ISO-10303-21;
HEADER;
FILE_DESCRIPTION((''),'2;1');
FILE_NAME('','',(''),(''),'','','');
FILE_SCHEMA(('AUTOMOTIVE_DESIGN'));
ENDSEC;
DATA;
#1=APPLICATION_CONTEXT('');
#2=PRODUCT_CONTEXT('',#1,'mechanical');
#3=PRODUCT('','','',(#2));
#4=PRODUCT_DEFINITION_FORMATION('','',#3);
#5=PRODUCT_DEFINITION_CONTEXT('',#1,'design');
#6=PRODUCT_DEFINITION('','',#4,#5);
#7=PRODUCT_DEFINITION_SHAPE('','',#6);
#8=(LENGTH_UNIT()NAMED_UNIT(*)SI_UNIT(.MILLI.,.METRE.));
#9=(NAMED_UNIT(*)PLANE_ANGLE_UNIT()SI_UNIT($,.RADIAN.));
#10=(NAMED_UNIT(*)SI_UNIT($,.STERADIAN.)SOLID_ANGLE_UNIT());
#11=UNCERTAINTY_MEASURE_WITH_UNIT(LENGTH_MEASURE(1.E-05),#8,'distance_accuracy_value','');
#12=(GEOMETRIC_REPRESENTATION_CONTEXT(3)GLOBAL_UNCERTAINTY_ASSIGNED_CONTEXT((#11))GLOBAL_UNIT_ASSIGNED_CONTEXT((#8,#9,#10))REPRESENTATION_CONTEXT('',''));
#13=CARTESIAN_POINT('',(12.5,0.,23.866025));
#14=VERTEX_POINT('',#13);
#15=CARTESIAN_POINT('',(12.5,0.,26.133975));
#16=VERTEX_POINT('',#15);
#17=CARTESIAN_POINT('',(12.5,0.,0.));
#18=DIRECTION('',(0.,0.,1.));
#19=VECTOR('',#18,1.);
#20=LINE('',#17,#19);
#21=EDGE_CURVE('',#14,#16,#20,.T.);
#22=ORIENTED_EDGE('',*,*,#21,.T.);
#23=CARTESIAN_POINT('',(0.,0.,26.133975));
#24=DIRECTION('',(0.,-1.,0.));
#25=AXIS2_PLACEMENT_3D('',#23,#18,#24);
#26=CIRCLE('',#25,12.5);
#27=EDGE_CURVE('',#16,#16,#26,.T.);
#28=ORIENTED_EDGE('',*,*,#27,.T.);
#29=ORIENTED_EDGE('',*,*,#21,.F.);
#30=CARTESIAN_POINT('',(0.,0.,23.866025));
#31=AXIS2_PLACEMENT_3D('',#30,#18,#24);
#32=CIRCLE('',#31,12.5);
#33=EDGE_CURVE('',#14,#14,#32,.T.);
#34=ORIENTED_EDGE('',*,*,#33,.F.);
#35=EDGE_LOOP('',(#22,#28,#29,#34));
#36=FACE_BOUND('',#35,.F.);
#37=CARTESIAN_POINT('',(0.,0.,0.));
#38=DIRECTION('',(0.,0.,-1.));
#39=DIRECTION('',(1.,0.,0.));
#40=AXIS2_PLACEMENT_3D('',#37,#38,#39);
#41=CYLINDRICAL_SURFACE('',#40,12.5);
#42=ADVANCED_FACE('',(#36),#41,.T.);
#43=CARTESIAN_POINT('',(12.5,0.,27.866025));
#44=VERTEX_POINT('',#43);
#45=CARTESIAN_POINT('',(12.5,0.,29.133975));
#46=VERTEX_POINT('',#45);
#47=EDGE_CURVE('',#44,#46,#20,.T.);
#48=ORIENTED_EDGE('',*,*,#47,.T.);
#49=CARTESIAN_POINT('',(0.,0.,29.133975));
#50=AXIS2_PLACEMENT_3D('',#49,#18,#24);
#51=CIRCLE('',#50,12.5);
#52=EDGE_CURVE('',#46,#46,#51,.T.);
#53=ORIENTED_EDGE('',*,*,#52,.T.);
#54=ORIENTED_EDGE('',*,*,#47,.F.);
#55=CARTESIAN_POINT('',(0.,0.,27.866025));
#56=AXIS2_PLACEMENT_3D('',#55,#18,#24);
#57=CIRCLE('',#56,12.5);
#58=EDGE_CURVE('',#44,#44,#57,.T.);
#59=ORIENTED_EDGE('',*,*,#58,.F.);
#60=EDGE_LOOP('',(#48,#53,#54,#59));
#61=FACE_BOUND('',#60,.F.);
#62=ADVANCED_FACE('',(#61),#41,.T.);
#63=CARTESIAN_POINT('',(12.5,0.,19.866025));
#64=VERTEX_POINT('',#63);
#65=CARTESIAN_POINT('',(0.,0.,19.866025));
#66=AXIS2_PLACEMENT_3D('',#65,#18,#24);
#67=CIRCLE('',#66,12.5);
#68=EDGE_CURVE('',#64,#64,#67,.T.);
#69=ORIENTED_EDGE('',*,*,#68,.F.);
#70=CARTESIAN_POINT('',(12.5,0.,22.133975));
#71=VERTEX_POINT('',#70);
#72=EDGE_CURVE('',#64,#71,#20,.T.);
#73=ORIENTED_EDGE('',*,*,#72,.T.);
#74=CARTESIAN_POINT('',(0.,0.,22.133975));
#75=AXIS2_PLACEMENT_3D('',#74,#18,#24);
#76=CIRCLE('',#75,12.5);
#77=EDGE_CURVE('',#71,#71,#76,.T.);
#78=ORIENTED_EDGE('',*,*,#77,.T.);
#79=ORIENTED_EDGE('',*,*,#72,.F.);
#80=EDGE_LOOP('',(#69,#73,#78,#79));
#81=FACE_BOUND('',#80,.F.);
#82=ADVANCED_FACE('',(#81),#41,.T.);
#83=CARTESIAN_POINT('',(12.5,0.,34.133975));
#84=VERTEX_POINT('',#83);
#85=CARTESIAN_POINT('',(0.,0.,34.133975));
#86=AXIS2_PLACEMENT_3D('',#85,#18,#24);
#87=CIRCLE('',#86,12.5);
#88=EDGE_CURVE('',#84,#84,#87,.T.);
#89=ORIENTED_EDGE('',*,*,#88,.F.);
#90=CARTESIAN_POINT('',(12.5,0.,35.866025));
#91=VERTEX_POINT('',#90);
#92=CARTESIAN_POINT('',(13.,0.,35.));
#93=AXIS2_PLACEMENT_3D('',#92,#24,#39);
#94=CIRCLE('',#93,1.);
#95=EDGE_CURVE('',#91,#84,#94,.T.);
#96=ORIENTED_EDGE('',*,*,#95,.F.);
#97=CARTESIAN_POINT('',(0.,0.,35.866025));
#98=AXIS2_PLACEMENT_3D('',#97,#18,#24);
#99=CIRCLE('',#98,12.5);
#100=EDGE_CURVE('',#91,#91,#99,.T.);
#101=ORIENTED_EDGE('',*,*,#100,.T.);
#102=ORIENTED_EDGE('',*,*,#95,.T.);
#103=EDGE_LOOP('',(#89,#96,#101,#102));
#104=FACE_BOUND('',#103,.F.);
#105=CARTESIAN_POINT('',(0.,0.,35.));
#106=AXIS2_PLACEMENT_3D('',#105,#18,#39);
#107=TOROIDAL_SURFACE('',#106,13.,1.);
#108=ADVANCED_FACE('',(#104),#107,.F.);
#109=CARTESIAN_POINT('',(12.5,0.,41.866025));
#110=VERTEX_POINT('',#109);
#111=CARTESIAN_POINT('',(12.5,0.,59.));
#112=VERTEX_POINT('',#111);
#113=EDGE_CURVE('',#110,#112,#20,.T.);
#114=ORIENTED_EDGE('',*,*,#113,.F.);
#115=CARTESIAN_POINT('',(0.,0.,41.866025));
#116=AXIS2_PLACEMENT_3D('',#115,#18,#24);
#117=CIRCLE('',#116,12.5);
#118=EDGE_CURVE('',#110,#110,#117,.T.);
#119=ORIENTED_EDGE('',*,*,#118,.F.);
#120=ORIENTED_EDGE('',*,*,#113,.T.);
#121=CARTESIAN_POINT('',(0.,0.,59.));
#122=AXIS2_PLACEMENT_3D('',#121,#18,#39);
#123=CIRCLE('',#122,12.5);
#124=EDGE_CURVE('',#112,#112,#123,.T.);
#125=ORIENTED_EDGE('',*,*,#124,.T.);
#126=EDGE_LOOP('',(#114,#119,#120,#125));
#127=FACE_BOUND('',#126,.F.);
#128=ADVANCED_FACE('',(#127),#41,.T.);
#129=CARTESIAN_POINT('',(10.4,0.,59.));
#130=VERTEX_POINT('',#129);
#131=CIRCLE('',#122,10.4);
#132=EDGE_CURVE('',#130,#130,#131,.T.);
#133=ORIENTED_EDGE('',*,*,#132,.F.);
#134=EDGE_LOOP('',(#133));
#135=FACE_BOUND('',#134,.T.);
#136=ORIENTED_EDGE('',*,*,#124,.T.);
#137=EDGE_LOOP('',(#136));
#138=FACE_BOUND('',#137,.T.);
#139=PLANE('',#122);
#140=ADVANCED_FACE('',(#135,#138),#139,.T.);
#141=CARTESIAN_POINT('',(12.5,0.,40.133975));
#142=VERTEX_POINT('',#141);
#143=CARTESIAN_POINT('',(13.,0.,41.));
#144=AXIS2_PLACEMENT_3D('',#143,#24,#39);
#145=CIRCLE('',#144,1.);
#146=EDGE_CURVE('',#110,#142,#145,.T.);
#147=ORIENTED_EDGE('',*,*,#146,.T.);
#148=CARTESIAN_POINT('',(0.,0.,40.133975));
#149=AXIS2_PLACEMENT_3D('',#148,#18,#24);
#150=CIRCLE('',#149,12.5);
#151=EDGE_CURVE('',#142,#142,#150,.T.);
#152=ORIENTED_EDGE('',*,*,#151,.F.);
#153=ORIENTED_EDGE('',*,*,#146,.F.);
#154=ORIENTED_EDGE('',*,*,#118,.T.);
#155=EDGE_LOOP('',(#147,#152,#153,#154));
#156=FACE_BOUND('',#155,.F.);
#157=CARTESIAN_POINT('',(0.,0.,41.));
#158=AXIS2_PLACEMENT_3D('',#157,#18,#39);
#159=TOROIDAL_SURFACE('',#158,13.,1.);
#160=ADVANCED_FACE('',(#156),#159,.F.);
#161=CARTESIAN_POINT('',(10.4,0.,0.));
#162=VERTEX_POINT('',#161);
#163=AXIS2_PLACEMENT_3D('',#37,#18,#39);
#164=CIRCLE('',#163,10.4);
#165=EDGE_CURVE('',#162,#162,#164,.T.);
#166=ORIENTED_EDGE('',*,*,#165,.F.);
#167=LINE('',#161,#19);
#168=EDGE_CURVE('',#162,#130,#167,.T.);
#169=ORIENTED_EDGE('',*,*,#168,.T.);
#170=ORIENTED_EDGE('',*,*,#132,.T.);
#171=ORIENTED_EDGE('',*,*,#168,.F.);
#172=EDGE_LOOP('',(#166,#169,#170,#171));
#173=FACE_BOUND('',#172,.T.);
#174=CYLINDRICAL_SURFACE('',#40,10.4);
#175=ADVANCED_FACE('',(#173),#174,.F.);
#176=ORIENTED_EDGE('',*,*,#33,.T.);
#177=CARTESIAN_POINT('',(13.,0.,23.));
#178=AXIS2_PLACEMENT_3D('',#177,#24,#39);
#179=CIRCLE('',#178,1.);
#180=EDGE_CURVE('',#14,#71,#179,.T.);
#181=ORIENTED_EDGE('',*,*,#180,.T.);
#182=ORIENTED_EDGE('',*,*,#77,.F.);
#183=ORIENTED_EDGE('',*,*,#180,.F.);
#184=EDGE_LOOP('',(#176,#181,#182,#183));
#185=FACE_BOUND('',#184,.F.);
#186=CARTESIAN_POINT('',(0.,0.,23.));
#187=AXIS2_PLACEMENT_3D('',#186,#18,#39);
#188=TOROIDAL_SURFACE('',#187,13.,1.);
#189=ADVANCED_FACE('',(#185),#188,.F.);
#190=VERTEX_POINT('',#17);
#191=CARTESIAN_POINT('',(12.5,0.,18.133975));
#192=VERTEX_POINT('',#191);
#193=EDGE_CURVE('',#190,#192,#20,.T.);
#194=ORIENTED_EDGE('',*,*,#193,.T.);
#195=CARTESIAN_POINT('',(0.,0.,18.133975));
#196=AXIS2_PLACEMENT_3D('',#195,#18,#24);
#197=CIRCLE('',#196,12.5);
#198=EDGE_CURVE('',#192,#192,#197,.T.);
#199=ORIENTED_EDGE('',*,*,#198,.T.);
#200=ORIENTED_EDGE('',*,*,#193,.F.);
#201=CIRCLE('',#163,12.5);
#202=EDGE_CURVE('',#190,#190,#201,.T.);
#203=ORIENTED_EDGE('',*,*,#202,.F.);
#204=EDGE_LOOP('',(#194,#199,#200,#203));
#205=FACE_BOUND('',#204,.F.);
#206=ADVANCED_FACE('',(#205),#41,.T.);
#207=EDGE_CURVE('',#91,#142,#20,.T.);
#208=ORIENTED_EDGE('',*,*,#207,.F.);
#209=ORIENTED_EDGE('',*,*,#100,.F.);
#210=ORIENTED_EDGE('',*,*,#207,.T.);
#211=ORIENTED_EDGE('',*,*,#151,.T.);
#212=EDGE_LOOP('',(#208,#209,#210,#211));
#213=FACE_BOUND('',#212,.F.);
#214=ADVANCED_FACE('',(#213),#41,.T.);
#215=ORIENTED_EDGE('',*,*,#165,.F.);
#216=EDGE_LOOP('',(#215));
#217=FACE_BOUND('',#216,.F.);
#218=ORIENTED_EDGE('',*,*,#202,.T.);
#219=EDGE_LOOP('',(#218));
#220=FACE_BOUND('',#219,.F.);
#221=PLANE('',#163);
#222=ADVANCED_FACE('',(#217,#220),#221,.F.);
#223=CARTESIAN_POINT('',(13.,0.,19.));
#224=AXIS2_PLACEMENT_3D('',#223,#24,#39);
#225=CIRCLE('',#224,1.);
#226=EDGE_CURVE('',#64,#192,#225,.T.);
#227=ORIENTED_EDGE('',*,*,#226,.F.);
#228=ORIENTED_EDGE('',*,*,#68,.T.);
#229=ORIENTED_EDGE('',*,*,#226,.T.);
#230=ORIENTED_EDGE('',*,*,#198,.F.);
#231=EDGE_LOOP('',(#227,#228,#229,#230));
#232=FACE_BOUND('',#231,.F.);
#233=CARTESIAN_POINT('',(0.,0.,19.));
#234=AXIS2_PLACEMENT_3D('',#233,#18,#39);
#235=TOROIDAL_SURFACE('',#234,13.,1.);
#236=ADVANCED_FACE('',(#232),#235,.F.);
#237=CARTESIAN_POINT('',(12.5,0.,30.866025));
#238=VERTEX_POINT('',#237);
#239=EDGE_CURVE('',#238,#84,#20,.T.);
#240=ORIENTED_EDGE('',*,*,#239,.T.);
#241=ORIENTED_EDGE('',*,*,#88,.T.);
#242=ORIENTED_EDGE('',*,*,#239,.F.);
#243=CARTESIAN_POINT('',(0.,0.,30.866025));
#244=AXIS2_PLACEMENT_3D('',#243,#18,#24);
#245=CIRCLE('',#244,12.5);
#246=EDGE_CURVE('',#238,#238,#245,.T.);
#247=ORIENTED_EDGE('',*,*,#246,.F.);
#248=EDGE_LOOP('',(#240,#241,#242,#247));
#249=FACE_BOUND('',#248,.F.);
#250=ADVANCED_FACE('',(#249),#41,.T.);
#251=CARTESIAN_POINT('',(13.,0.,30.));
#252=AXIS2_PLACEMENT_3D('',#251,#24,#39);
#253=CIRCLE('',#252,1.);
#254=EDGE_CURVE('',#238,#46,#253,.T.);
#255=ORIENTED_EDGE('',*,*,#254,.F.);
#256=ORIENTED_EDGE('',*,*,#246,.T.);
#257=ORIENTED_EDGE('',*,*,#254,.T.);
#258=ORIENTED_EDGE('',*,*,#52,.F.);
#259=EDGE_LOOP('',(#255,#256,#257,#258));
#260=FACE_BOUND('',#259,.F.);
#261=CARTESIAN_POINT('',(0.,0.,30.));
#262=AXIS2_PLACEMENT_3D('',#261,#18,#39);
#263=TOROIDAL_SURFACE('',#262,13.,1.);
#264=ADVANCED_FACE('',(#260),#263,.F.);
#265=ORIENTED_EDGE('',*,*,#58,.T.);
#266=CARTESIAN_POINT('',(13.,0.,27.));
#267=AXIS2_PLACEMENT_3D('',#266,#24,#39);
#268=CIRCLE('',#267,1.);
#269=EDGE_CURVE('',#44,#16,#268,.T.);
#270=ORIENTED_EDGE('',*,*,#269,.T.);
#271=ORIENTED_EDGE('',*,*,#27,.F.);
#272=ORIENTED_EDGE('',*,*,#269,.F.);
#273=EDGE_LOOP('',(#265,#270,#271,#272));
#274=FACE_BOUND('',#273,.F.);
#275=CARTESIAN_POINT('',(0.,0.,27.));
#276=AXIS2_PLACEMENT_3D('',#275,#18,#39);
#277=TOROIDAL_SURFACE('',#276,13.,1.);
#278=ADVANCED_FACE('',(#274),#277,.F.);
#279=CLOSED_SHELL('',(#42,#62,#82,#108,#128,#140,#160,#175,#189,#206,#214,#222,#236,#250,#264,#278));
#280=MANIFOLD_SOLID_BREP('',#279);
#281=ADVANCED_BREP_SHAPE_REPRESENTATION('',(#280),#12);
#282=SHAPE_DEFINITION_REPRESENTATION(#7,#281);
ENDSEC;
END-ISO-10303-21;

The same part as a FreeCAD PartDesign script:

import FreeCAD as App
import Part
import Sketcher
from FreeCAD import Vector

doc = App.newDocument("Part")
body = doc.addObject("PartDesign::Body", "Body")

sketch1 = body.newObject("Sketcher::SketchObject", "Sketch")
sketch1.AttachmentSupport = (doc.getObject("XZ_Plane"), [""])
sketch1.MapMode = "FlatFace"
sketch1.addGeometry(Part.Circle(Vector(13, 19, 0), Vector(0, 0, 1), 1), False)
sketch1.addConstraint([
    Sketcher.Constraint("Diameter", 0, 2.0),
    Sketcher.Constraint("DistanceX", -1, 1, 0, 3, 13.0),
    Sketcher.Constraint("DistanceY", -1, 1, 0, 3, 19.0),
])
revolution = body.newObject("PartDesign::Revolution", "Revolution")
revolution.Profile = sketch1
revolution.ReferenceAxis = (sketch1, ["V_Axis"])
revolution.Angle = 360
body2 = doc.addObject("PartDesign::Body", "Body001")

sketch2 = body2.newObject("Sketcher::SketchObject", "Sketch001")
sketch2.AttachmentSupport = (doc.getObject("XZ_Plane001"), [""])
sketch2.MapMode = "FlatFace"
sketch2.addGeometry(Part.Circle(Vector(13, 23, 0), Vector(0, 0, 1), 1), False)
sketch2.addConstraint([
    Sketcher.Constraint("Diameter", 0, 2.0),
    Sketcher.Constraint("DistanceX", -1, 1, 0, 3, 13.0),
    Sketcher.Constraint("DistanceY", -1, 1, 0, 3, 23.0),
])
revolution2 = body2.newObject("PartDesign::Revolution", "Revolution001")
revolution2.Profile = sketch2
revolution2.ReferenceAxis = (sketch2, ["V_Axis"])
revolution2.Angle = 360
body3 = doc.addObject("PartDesign::Body", "Body002")

sketch3 = body3.newObject("Sketcher::SketchObject", "Sketch002")
sketch3.AttachmentSupport = (doc.getObject("XZ_Plane002"), [""])
sketch3.MapMode = "FlatFace"
sketch3.addGeometry(Part.Circle(Vector(13, 27, 0), Vector(0, 0, 1), 1), False)
sketch3.addConstraint([
    Sketcher.Constraint("Diameter", 0, 2.0),
    Sketcher.Constraint("DistanceX", -1, 1, 0, 3, 13.0),
    Sketcher.Constraint("DistanceY", -1, 1, 0, 3, 27.0),
])
revolution3 = body3.newObject("PartDesign::Revolution", "Revolution002")
revolution3.Profile = sketch3
revolution3.ReferenceAxis = (sketch3, ["V_Axis"])
revolution3.Angle = 360
body4 = doc.addObject("PartDesign::Body", "Body003")

sketch4 = body4.newObject("Sketcher::SketchObject", "Sketch003")
sketch4.AttachmentSupport = (doc.getObject("XZ_Plane003"), [""])
sketch4.MapMode = "FlatFace"
sketch4.addGeometry(Part.Circle(Vector(13, 30, 0), Vector(0, 0, 1), 1), False)
sketch4.addConstraint([
    Sketcher.Constraint("Diameter", 0, 2.0),
    Sketcher.Constraint("DistanceX", -1, 1, 0, 3, 13.0),
    Sketcher.Constraint("DistanceY", -1, 1, 0, 3, 30.0),
])
revolution4 = body4.newObject("PartDesign::Revolution", "Revolution003")
revolution4.Profile = sketch4
revolution4.ReferenceAxis = (sketch4, ["V_Axis"])
revolution4.Angle = 360
body5 = doc.addObject("PartDesign::Body", "Body004")

sketch5 = body5.newObject("Sketcher::SketchObject", "Sketch004")
sketch5.AttachmentSupport = (doc.getObject("XZ_Plane004"), [""])
sketch5.MapMode = "FlatFace"
sketch5.addGeometry(Part.Circle(Vector(13, 35, 0), Vector(0, 0, 1), 1), False)
sketch5.addConstraint([
    Sketcher.Constraint("Diameter", 0, 2.0),
    Sketcher.Constraint("DistanceX", -1, 1, 0, 3, 13.0),
    Sketcher.Constraint("DistanceY", -1, 1, 0, 3, 35.0),
])
revolution5 = body5.newObject("PartDesign::Revolution", "Revolution004")
revolution5.Profile = sketch5
revolution5.ReferenceAxis = (sketch5, ["V_Axis"])
revolution5.Angle = 360
body6 = doc.addObject("PartDesign::Body", "Body005")

sketch6 = body6.newObject("Sketcher::SketchObject", "Sketch005")
sketch6.AttachmentSupport = (doc.getObject("XZ_Plane005"), [""])
sketch6.MapMode = "FlatFace"
sketch6.addGeometry(Part.Circle(Vector(13, 41, 0), Vector(0, 0, 1), 1), False)
sketch6.addConstraint([
    Sketcher.Constraint("Diameter", 0, 2.0),
    Sketcher.Constraint("DistanceX", -1, 1, 0, 3, 13.0),
    Sketcher.Constraint("DistanceY", -1, 1, 0, 3, 41.0),
])
revolution6 = body6.newObject("PartDesign::Revolution", "Revolution005")
revolution6.Profile = sketch6
revolution6.ReferenceAxis = (sketch6, ["V_Axis"])
revolution6.Angle = 360
body7 = doc.addObject("PartDesign::Body", "Body006")

sketch7 = body7.newObject("Sketcher::SketchObject", "Sketch006")
sketch7.AttachmentSupport = (doc.getObject("XY_Plane006"), [""])
sketch7.MapMode = "FlatFace"
sketch7.addGeometry(Part.Circle(Vector(0, 0, 0), Vector(0, 0, 1), 10), False)
sketch7.addConstraint([
    Sketcher.Constraint("Coincident", 0, 3, -1, 1),
    Sketcher.Constraint("Diameter", 0, 20.8),
])
pad1 = body7.newObject("PartDesign::Pad", "Pad")
pad1.Profile = sketch7
pad1.Length = 59
body8 = doc.addObject("PartDesign::Body", "Body007")

sketch8 = body8.newObject("Sketcher::SketchObject", "Sketch007")
sketch8.AttachmentSupport = (doc.getObject("XY_Plane007"), [""])
sketch8.MapMode = "FlatFace"
sketch8.addGeometry(Part.Circle(Vector(0, 0, 0), Vector(0, 0, 1), 12), False)
sketch8.addConstraint([
    Sketcher.Constraint("Coincident", 0, 3, -1, 1),
    Sketcher.Constraint("Diameter", 0, 25.0),
])
pad2 = body8.newObject("PartDesign::Pad", "Pad001")
pad2.Profile = sketch8
pad2.Length = 59
doc.recompute()

boolean = body8.newObject("PartDesign::Boolean", "Boolean")
boolean.Type = "Cut"
boolean.addObjects([body7])
doc.recompute()

boolean2 = body8.newObject("PartDesign::Boolean", "Boolean001")
boolean2.Type = "Cut"
boolean2.addObjects([body6])
doc.recompute()

boolean3 = body8.newObject("PartDesign::Boolean", "Boolean002")
boolean3.Type = "Cut"
boolean3.addObjects([body5])
doc.recompute()

boolean4 = body8.newObject("PartDesign::Boolean", "Boolean003")
boolean4.Type = "Cut"
boolean4.addObjects([body4])
doc.recompute()

boolean5 = body8.newObject("PartDesign::Boolean", "Boolean004")
boolean5.Type = "Cut"
boolean5.addObjects([body3])
doc.recompute()

boolean6 = body8.newObject("PartDesign::Boolean", "Boolean005")
boolean6.Type = "Cut"
boolean6.addObjects([body2])
doc.recompute()

boolean7 = body8.newObject("PartDesign::Boolean", "Boolean006")
boolean7.Type = "Cut"
boolean7.addObjects([body])

doc.recompute()
